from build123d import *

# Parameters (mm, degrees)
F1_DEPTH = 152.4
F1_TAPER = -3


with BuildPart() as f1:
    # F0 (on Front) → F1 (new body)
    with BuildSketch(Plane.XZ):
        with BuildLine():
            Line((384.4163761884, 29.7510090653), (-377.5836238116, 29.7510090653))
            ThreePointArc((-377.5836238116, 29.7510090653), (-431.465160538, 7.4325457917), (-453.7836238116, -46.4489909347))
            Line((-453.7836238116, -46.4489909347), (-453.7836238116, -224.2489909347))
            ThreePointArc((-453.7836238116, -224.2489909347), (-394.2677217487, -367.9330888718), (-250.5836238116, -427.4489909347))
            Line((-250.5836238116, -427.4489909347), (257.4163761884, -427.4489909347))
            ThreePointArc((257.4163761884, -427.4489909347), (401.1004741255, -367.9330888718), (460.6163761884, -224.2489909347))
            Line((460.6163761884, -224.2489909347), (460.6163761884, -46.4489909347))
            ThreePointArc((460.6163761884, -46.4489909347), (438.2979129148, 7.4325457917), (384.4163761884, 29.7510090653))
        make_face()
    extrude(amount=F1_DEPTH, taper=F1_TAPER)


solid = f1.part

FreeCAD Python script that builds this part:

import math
import FreeCAD as App
import Part
import Sketcher

V = App.Vector
Q = App.Units.Quantity

doc = App.newDocument("Part")
body = doc.addObject("PartDesign::Body", "Body")

# Sketch on XZ plane
sketch1 = doc.addObject("Sketcher::SketchObject", "Sketch")
body.addObject(sketch1)
sketch1.AttachmentSupport = (doc.XZ_Plane, [""])
sketch1.MapMode = "FlatFace"
sketch1.addGeometry(Part.LineSegment(V(384.416376, 29.751009, 0), V(-377.583624, 29.751009, 0)), False)
sketch1.addGeometry(Part.ArcOfCircle(Part.Circle(V(-377.583624, -46.448991, 0), V(0, 0, 1), 76.2), math.radians(90), math.radians(180)), False)
sketch1.addGeometry(Part.LineSegment(V(-453.783624, -46.448991, 0), V(-453.783624, -224.248991, 0)), False)
sketch1.addGeometry(Part.ArcOfCircle(Part.Circle(V(-250.583624, -224.248991, 0), V(0, 0, 1), 203.2), math.radians(180), math.radians(270)), False)
sketch1.addGeometry(Part.LineSegment(V(-250.583624, -427.448991, 0), V(257.416376, -427.448991, 0)), False)
sketch1.addGeometry(Part.ArcOfCircle(Part.Circle(V(257.416376, -224.248991, 0), V(0, 0, 1), 203.2), math.radians(-90), math.radians(0)), False)
sketch1.addGeometry(Part.LineSegment(V(460.616376, -224.248991, 0), V(460.616376, -46.448991, 0)), False)
sketch1.addGeometry(Part.ArcOfCircle(Part.Circle(V(384.416376, -46.448991, 0), V(0, 0, 1), 76.2), math.radians(0), math.radians(90)), False)
sketch1.addConstraint(Sketcher.Constraint("Tangent", 0, 2, 1, 1))
sketch1.addConstraint(Sketcher.Constraint("Tangent", 1, 2, 2, 1))
sketch1.addConstraint(Sketcher.Constraint("Tangent", 2, 2, 3, 1))
sketch1.addConstraint(Sketcher.Constraint("Tangent", 3, 2, 4, 1))
sketch1.addConstraint(Sketcher.Constraint("Tangent", 4, 2, 5, 1))
sketch1.addConstraint(Sketcher.Constraint("Tangent", 5, 2, 6, 1))
sketch1.addConstraint(Sketcher.Constraint("Tangent", 6, 2, 7, 1))
sketch1.addConstraint(Sketcher.Constraint("Tangent", 7, 2, 0, 1))
sketch1.addConstraint(Sketcher.Constraint("Horizontal", 0))
sketch1.addConstraint(Sketcher.Constraint("Vertical", 2))
sketch1.addConstraint(Sketcher.Constraint("Horizontal", 4))
sketch1.addConstraint(Sketcher.Constraint("Vertical", 6))
sketch1.addConstraint(Sketcher.Constraint("Equal", 3, 5))
sketch1.addConstraint(Sketcher.Constraint("Equal", 1, 7))
sketch1.addConstraint(Sketcher.Constraint("Radius", 1, Q("3 in")))
sketch1.addConstraint(Sketcher.Constraint("Radius", 3, Q("8 in")))
sketch1.addConstraint(Sketcher.Constraint("DistanceX", 0, 2, 0, 1, Q("30 in")))
sketch1.addConstraint(Sketcher.Constraint("DistanceY", 2, 2, 2, 1, Q("7 in")))
sketch1.addConstraint(Sketcher.Constraint("DistanceY", 1, 3, -1, 1, 46.448991))
sketch1.addConstraint(Sketcher.Constraint("DistanceX", 1, 3, -1, 1, 377.583624))
pad1 = doc.addObject("PartDesign::Pad", "Pad")
body.addObject(pad1)
pad1.Profile = sketch1
pad1.Length = Q("6 in")
pad1.TaperAngle = 3

doc.recompute()
